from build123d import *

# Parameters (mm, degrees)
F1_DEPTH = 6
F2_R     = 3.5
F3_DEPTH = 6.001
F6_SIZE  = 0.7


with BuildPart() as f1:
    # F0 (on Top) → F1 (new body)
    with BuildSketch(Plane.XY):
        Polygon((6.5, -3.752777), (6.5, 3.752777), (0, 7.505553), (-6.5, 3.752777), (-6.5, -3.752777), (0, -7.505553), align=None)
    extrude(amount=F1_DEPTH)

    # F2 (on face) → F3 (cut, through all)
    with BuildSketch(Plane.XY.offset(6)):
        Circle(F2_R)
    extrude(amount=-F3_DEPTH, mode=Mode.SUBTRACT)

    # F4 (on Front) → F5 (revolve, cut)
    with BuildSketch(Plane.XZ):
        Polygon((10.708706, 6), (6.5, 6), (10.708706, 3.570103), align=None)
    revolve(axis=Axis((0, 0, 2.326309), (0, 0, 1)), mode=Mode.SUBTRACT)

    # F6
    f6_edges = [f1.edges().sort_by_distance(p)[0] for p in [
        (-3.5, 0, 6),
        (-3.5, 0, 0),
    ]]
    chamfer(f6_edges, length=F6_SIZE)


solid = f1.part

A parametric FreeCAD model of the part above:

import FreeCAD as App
import Part
import Sketcher
Q = App.Units.Quantity


def edges_at(feature, points):
    """Names of the edges that pass closest to the given points."""
    edges = feature.Shape.Edges
    near = lambda p: min(range(len(edges)), key=lambda i: edges[i].distToShape(Part.Vertex(*p))[0])
    return sorted({f"Edge{near(p) + 1}" for p in points})

doc = App.newDocument("Part")
body = doc.addObject("PartDesign::Body", "Body")

sketch1 = doc.addObject("Sketcher::SketchObject", "Sketch")
body.addObject(sketch1)
sketch1.AttachmentSupport = (doc.XY_Plane, [""])
sketch1.MapMode = "FlatFace"
sketch1.addGeometry(Part.LineSegment(App.Vector(6, -4, 0), App.Vector(6, 4, 0)), False)
sketch1.addGeometry(Part.LineSegment(App.Vector(6, 4, 0), App.Vector(0, 8, 0)), False)
sketch1.addGeometry(Part.LineSegment(App.Vector(0, 8, 0), App.Vector(-6, 4, 0)), False)
sketch1.addGeometry(Part.LineSegment(App.Vector(-6, 4, 0), App.Vector(-6, -4, 0)), False)
sketch1.addGeometry(Part.LineSegment(App.Vector(-6, -4, 0), App.Vector(0, -8, 0)), False)
sketch1.addGeometry(Part.LineSegment(App.Vector(0, -8, 0), App.Vector(6, -4, 0)), False)
sketch1.addConstraint(Sketcher.Constraint("Coincident", 0, 2, 1, 1))
sketch1.addConstraint(Sketcher.Constraint("Coincident", 1, 2, 2, 1))
sketch1.addConstraint(Sketcher.Constraint("Coincident", 2, 2, 3, 1))
sketch1.addConstraint(Sketcher.Constraint("Coincident", 3, 2, 4, 1))
sketch1.addConstraint(Sketcher.Constraint("Coincident", 4, 2, 5, 1))
sketch1.addConstraint(Sketcher.Constraint("Coincident", 5, 2, 0, 1))
sketch1.addConstraint(Sketcher.Constraint("Vertical", 0))
sketch1.addConstraint(Sketcher.Constraint("Vertical", 3))
sketch1.addConstraint(Sketcher.Constraint("Symmetric", 0, 2, 3, 2, -1, 1))
sketch1.addConstraint(Sketcher.Constraint("Symmetric", 1, 2, 4, 2, -1, 1))
sketch1.addConstraint(Sketcher.Constraint("PointOnObject", 1, 2, -2))
sketch1.addConstraint(Sketcher.Constraint("Parallel", 2, 5))
sketch1.addConstraint(Sketcher.Constraint("Horizontal", 0, 2, 2, 2))
sketch1.addConstraint(Sketcher.Constraint("Angle", 1, Q("150.000005 deg")))
sketch1.addConstraint(Sketcher.Constraint("DistanceX", 2, 2, 0, 2, 13.0))
sketch1.addConstraint(Sketcher.Constraint("DistanceY", 0, 1, 0, 2, 7.505554))
pad1 = doc.addObject("PartDesign::Pad", "Pad")
body.addObject(pad1)
pad1.Profile = sketch1
pad1.Length = 6

sketch2 = doc.addObject("Sketcher::SketchObject", "Sketch001")
body.addObject(sketch2)
sketch2.AttachmentSupport = (doc.XY_Plane, [""])
sketch2.MapMode = "FlatFace"
sketch2.AttachmentOffset = App.Placement(App.Vector(0, 0, 6), App.Rotation())
sketch2.addGeometry(Part.Circle(App.Vector(0, 0, 0), App.Vector(0, 0, 1), 3.5), False)
sketch2.addConstraint(Sketcher.Constraint("Coincident", 0, 3, -1, 1))
sketch2.addConstraint(Sketcher.Constraint("Diameter", 0, 7.0))
pocket1 = doc.addObject("PartDesign::Pocket", "Pocket")
body.addObject(pocket1)
pocket1.Profile = sketch2
pocket1.Type = "ThroughAll"

sketch3 = doc.addObject("Sketcher::SketchObject", "Sketch002")
body.addObject(sketch3)
sketch3.AttachmentSupport = (doc.XZ_Plane, [""])
sketch3.MapMode = "FlatFace"
sketch3.addGeometry(Part.LineSegment(App.Vector(10.7, 6, 0), App.Vector(6.5, 6, 0)), False)
sketch3.addGeometry(Part.LineSegment(App.Vector(6.5, 6, 0), App.Vector(10.7, 3.6, 0)), False)
sketch3.addGeometry(Part.LineSegment(App.Vector(10.7, 3.6, 0), App.Vector(10.7, 6, 0)), False)
sketch3.addConstraint(Sketcher.Constraint("Coincident", 0, 2, 1, 1))
sketch3.addConstraint(Sketcher.Constraint("Coincident", 1, 2, 2, 1))
sketch3.addConstraint(Sketcher.Constraint("Coincident", 2, 2, 0, 1))
sketch3.addConstraint(Sketcher.Constraint("Horizontal", 0))
sketch3.addConstraint(Sketcher.Constraint("Vertical", 2))
sketch3.addConstraint(Sketcher.Constraint("Angle", 1, Q("-29.999994 deg")))
sketch3.addConstraint(Sketcher.Constraint("DistanceY", -1, 1, 0, 2, 6.0))
sketch3.addConstraint(Sketcher.Constraint("DistanceX", -1, 1, 0, 2, 6.5))
sketch3.addConstraint(Sketcher.Constraint("DistanceX", 0, 2, 0, 1, 4.208706))
groove = doc.addObject("PartDesign::Groove", "Groove")
body.addObject(groove)
groove.Profile = sketch3
groove.ReferenceAxis = (sketch3, ["V_Axis"])
groove.Angle = 360
doc.recompute()

chamfer = doc.addObject("PartDesign::Chamfer", "Chamfer")
body.addObject(chamfer)
chamfer.Base = (groove, edges_at(groove, [(-3.5, 0, 6), (-3.5, 0, 0)]))
chamfer.Size = 0.7

doc.recompute()
